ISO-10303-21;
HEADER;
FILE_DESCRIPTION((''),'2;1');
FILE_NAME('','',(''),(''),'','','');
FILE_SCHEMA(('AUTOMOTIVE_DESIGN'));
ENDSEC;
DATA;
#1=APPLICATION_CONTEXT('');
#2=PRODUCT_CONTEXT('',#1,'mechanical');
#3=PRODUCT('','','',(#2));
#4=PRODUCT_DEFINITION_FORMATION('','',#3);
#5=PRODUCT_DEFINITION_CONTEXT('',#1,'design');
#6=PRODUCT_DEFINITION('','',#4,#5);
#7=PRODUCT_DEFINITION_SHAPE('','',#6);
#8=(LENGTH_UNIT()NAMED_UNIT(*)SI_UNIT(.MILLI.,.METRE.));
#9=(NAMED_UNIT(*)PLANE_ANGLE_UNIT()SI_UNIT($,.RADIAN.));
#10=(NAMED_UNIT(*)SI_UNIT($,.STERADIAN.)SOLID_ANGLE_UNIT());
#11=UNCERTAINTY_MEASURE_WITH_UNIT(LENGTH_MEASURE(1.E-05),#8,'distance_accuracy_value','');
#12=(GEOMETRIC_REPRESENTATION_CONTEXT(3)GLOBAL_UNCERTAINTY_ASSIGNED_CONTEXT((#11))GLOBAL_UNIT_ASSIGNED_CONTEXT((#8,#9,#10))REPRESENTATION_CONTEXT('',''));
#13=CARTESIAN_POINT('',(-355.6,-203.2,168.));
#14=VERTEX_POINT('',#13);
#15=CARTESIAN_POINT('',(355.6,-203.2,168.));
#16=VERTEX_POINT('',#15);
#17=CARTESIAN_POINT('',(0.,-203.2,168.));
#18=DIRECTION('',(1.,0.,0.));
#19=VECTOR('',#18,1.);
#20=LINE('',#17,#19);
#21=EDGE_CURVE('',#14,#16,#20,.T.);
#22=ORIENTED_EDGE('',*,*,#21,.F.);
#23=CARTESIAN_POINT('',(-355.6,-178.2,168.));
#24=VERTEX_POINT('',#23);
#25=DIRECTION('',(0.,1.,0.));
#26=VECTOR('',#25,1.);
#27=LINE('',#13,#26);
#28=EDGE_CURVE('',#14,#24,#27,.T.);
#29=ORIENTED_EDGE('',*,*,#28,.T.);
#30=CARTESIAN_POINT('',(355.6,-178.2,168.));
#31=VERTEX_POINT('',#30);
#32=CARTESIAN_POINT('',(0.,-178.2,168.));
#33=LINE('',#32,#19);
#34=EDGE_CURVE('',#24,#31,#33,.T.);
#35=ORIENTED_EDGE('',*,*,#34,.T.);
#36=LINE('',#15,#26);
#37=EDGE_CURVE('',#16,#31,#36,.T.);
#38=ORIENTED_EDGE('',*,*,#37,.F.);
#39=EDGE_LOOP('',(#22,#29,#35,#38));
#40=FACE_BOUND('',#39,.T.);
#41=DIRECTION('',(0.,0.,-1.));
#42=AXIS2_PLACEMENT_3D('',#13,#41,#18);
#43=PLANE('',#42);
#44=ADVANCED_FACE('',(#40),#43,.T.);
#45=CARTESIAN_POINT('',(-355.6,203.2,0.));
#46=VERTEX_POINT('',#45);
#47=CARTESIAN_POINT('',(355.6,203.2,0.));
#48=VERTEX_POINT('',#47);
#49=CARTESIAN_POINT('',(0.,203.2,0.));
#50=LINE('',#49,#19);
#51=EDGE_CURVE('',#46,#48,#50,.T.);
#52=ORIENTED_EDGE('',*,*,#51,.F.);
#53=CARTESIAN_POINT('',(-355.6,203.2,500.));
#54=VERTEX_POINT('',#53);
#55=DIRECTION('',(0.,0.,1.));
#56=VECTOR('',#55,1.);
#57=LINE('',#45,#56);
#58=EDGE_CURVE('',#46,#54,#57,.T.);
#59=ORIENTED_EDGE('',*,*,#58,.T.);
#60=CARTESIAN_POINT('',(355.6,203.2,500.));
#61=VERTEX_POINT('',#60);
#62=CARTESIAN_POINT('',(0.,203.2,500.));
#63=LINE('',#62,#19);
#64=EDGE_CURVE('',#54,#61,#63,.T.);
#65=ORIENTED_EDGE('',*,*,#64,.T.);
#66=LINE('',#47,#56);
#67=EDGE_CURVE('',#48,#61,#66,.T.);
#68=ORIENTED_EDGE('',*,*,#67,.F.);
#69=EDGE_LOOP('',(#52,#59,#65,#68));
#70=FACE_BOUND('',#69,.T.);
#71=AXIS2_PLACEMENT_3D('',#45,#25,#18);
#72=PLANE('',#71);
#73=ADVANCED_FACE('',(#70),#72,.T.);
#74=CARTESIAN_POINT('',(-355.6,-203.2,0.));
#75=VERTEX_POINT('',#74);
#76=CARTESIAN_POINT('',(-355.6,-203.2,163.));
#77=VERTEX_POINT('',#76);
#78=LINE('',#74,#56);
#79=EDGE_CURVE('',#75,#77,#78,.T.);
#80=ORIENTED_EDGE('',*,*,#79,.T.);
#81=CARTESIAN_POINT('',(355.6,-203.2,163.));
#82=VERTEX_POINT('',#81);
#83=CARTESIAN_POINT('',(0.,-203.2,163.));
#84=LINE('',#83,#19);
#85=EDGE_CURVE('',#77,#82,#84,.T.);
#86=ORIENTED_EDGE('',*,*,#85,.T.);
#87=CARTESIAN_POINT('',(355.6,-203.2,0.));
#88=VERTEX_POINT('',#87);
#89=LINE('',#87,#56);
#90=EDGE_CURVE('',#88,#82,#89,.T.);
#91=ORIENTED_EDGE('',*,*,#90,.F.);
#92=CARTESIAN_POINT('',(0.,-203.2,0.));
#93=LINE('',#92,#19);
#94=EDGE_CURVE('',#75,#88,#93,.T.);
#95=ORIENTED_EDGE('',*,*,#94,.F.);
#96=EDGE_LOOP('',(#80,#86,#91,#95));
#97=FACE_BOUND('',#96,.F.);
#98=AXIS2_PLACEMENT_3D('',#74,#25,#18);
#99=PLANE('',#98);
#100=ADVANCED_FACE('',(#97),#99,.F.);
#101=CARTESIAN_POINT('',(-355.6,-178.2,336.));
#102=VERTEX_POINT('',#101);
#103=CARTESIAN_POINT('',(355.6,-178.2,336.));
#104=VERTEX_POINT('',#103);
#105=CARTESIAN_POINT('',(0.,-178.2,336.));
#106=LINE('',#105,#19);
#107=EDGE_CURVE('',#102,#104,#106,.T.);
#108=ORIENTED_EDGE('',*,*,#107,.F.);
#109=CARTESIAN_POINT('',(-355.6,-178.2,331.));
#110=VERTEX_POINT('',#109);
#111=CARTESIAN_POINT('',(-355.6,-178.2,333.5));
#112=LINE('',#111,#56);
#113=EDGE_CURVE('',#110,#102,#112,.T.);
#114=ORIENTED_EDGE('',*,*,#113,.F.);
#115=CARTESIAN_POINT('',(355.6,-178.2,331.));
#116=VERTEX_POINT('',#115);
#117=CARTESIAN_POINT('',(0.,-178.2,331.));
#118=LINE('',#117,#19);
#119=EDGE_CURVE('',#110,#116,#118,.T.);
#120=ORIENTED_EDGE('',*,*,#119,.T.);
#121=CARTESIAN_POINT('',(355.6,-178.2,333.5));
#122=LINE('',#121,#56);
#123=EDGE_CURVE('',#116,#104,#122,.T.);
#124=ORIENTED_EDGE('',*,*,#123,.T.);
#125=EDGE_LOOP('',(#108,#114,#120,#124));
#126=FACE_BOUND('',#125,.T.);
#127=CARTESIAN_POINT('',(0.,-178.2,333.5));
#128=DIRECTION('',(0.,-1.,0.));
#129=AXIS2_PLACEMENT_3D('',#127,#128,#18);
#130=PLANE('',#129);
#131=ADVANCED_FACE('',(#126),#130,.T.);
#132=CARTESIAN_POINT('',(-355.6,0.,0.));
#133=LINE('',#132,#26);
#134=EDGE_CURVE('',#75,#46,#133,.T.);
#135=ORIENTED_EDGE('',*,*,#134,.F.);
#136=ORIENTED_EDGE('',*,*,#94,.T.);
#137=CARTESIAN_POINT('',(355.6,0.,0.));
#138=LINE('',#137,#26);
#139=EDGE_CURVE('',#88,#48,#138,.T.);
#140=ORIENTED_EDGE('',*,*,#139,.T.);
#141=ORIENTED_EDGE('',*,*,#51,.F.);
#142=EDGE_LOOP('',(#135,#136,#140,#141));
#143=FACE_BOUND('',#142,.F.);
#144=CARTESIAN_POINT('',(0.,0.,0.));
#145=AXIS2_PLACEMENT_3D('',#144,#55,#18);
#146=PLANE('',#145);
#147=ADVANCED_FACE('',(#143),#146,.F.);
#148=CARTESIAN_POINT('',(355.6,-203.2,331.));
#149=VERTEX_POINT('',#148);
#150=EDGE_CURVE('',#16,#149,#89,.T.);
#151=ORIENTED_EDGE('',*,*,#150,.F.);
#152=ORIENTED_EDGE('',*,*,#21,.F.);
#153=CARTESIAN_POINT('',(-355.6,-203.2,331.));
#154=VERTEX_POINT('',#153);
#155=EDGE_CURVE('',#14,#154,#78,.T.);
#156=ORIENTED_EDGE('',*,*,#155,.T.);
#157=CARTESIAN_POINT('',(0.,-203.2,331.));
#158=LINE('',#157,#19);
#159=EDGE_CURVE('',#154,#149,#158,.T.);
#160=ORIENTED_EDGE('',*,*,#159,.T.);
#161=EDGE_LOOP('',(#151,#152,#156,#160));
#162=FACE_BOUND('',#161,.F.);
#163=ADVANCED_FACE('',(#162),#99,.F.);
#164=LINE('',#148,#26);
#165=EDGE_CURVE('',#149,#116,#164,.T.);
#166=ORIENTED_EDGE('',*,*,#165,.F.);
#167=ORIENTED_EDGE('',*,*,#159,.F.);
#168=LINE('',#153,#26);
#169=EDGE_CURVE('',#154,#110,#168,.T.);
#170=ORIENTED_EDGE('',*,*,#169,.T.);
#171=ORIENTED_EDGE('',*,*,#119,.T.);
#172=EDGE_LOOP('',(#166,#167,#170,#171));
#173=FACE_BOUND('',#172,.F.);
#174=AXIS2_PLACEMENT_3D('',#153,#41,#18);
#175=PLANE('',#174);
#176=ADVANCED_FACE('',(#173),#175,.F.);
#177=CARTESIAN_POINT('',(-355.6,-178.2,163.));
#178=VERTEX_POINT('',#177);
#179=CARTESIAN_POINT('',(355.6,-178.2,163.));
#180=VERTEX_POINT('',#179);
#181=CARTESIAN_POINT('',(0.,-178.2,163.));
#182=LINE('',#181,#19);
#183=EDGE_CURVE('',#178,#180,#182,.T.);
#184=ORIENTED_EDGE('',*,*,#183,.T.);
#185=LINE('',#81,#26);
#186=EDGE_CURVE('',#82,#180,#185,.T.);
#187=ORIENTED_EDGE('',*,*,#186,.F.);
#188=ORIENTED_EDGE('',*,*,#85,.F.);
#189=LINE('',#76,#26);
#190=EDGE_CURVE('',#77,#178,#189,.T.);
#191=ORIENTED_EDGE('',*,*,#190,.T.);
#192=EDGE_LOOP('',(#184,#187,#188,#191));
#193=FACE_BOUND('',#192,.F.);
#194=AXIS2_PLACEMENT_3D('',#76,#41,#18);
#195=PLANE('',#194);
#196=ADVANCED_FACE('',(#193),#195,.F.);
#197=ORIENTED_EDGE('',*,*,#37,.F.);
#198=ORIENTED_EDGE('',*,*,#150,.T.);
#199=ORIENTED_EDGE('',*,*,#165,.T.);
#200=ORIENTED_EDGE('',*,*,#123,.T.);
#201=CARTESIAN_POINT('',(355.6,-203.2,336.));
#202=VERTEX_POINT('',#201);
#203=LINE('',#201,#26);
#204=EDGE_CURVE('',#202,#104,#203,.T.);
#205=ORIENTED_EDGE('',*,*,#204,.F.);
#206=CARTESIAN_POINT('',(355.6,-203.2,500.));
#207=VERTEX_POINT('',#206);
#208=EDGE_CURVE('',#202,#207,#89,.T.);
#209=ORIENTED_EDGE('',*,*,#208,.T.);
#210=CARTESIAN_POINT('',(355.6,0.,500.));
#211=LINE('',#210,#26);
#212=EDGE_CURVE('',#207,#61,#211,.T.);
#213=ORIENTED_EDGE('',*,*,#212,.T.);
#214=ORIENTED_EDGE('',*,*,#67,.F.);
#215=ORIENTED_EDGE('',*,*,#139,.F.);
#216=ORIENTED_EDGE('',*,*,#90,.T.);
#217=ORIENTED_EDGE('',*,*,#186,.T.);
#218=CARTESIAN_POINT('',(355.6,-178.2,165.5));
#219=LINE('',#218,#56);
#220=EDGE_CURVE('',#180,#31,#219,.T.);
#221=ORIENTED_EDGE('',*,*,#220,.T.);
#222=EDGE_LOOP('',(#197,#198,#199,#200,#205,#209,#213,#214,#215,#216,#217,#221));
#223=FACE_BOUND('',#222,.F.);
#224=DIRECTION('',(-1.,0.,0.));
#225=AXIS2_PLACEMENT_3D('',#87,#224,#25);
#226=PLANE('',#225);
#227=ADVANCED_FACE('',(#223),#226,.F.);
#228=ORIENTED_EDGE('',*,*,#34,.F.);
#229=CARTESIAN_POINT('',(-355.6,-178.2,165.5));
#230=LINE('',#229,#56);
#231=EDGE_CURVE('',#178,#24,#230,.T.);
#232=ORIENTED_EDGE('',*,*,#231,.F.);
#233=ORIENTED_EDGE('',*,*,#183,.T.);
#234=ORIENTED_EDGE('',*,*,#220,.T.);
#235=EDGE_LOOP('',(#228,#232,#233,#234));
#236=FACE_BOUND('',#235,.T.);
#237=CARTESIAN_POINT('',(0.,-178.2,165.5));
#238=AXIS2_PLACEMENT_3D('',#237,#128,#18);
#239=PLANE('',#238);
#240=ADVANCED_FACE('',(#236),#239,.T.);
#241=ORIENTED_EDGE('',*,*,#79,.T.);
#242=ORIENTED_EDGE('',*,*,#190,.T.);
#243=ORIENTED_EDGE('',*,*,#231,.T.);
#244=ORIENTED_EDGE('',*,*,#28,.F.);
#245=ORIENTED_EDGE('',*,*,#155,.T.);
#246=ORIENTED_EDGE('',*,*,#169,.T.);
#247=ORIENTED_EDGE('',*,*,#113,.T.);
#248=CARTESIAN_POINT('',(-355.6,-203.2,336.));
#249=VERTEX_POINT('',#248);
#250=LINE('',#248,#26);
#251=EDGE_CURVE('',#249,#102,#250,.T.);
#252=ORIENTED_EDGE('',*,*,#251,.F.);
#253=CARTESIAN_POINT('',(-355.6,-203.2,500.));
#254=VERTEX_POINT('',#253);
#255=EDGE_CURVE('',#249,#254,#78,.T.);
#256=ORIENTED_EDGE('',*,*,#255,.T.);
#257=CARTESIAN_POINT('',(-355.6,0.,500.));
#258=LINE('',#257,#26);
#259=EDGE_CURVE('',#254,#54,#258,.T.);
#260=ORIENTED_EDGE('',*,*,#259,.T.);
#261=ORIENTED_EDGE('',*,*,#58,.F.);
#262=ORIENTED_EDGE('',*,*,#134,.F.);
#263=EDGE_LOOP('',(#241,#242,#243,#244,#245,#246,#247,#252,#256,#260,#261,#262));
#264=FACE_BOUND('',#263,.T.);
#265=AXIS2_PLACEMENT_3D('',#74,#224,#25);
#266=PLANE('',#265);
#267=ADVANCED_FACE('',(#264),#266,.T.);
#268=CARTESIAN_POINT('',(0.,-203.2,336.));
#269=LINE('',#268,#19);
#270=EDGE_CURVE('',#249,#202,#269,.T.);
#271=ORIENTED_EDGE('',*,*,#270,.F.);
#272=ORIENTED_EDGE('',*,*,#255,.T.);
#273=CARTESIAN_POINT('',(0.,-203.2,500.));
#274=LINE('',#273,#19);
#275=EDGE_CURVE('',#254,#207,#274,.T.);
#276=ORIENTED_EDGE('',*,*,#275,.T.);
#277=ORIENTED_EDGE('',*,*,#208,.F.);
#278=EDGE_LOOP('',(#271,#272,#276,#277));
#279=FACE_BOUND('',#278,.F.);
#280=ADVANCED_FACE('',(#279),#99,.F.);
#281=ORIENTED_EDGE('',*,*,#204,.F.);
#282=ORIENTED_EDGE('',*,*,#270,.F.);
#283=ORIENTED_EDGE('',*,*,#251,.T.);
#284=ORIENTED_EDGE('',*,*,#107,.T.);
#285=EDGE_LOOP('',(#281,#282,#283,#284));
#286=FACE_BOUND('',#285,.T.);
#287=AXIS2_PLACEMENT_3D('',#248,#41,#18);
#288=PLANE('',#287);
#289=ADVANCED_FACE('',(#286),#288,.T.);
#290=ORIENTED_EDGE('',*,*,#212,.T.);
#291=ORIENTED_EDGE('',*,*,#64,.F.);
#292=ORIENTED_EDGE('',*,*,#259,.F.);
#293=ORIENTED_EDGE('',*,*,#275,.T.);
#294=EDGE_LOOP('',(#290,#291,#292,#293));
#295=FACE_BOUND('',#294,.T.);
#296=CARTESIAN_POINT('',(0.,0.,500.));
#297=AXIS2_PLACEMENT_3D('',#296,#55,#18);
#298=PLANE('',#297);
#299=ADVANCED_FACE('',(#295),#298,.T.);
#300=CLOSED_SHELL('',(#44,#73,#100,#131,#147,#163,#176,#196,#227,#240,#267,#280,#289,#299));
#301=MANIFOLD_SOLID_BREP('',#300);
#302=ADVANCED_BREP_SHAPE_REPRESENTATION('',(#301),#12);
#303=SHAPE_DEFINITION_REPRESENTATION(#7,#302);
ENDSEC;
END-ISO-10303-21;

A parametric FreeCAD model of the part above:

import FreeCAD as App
import Part
import Sketcher
from FreeCAD import Vector
Q = App.Units.Quantity


def add_polygon(sketch, points):
    """Adds a closed chain of lines whose ends are joined by coincident constraints."""
    first, n = sketch.GeometryCount, len(points)
    for a, b in zip(points, points[1:] + points[:1]):
        sketch.addGeometry(Part.LineSegment(App.Vector(*a, 0), App.Vector(*b, 0)), False)
    for i in range(n):
        sketch.addConstraint(Sketcher.Constraint("Coincident", first + i, 2, first + (i + 1) % n, 1))

doc = App.newDocument("Part")
body = doc.addObject("PartDesign::Body", "Body")

# Sketch on XY plane
sketch1 = doc.addObject("Sketcher::SketchObject", "Sketch")
body.addObject(sketch1)
sketch1.AttachmentSupport = (doc.XY_Plane, [""])
sketch1.MapMode = "FlatFace"
add_polygon(sketch1, [(-355.6, 203.2), (-355.6, -203.2), (355.6, -203.2), (355.6, 203.2)])  # lines 0-3
sketch1.addConstraint([
    Sketcher.Constraint("Vertical", 0),
    Sketcher.Constraint("Horizontal", 1),
    Sketcher.Constraint("Vertical", 2),
    Sketcher.Constraint("Horizontal", 3),
    Sketcher.Constraint("Symmetric", 0, 2, 2, 2, -1, 1),
    Sketcher.Constraint("DistanceX", 1, 1, 1, 2, Q("711.2 mm")),
    Sketcher.Constraint("DistanceY", 0, 2, 0, 1, Q("406.4 mm")),
])
pad1 = doc.addObject("PartDesign::Pad", "Pad")
body.addObject(pad1)
pad1.Profile = sketch1
pad1.Length = 500

# Sketch on XZ plane
sketch2 = doc.addObject("Sketcher::SketchObject", "Sketch001")
body.addObject(sketch2)
sketch2.AttachmentSupport = (doc.XZ_Plane, [""])
sketch2.MapMode = "FlatFace"
sketch2.AttachmentOffset = App.Placement(Vector(0, 0, 203.2), App.Rotation())
add_polygon(sketch2, [(-355.6, 336), (-355.6, 331), (355.6, 331), (355.6, 336)])  # lines 0-3
add_polygon(sketch2, [(-355.6, 168), (-355.6, 163), (355.6, 163), (355.6, 168)])  # lines 4-7
sketch2.addConstraint([
    Sketcher.Constraint("Vertical", 0),
    Sketcher.Constraint("Horizontal", 1),
    Sketcher.Constraint("Vertical", 2),
    Sketcher.Constraint("Horizontal", 3),
    Sketcher.Constraint("Vertical", 4),
    Sketcher.Constraint("Horizontal", 5),
    Sketcher.Constraint("Vertical", 6),
    Sketcher.Constraint("Horizontal", 7),
    Sketcher.Constraint("Vertical", 3, 2, 4, 2),
    Sketcher.Constraint("Vertical", 2, 2, 5, 2),
    Sketcher.Constraint("Equal", 2, 4),
    Sketcher.Constraint("DistanceY", 0, 2, 0, 1, Q("5 mm")),
    Sketcher.Constraint("DistanceX", 1, 1, 1, 2, Q("711.2 mm")),
    Sketcher.Constraint("DistanceY", -1, 1, 0, 2, Q("331 mm")),
    Sketcher.Constraint("DistanceY", -1, 1, 4, 2, Q("163 mm")),
    Sketcher.Constraint("DistanceX", 0, 2, -1, 1, Q("355.6 mm")),
])
pocket1 = doc.addObject("PartDesign::Pocket", "Pocket")
body.addObject(pocket1)
pocket1.Profile = sketch2
pocket1.Length = 25

doc.recompute()
